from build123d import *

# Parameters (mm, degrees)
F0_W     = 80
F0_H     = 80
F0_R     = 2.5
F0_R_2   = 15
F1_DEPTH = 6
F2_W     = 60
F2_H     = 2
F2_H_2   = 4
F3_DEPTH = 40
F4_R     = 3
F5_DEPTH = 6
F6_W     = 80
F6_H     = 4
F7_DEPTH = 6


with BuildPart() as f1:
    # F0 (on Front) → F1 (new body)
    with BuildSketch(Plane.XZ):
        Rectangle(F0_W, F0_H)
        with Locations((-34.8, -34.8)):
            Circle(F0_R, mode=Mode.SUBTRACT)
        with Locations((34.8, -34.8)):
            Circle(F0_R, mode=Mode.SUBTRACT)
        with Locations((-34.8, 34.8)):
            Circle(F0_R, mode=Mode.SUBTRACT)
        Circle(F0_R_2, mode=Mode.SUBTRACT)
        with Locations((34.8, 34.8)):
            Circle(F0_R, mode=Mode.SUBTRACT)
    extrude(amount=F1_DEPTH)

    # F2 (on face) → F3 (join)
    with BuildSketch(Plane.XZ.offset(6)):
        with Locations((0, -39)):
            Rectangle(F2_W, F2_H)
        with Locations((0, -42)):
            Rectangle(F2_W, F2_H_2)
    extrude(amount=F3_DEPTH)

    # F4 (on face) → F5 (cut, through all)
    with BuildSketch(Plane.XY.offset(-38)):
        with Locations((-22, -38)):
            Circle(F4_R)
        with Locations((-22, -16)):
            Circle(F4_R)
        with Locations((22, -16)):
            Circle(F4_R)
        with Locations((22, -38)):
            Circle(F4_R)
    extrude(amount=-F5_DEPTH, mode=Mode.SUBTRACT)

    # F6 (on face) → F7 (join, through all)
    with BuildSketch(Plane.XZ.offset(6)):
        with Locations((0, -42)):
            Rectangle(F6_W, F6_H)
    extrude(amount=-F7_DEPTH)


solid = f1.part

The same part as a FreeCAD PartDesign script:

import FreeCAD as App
import Part
import Sketcher
Q = App.Units.Quantity

doc = App.newDocument("Part")
body = doc.addObject("PartDesign::Body", "Body")

# Sketch on XZ plane
sketch1 = body.newObject("Sketcher::SketchObject", "Sketch")
sketch1.AttachmentSupport = (doc.getObject("XZ_Plane"), [""])
sketch1.MapMode = "FlatFace"
sketch1.addGeometry(Part.LineSegment(App.Vector(-40, 40, 0), App.Vector(-40, -40, 0)), False)
sketch1.addGeometry(Part.LineSegment(App.Vector(-40, -40, 0), App.Vector(40, -40, 0)), False)
sketch1.addGeometry(Part.LineSegment(App.Vector(40, -40, 0), App.Vector(40, 40, 0)), False)
sketch1.addGeometry(Part.LineSegment(App.Vector(40, 40, 0), App.Vector(-40, 40, 0)), False)
sketch1.addGeometry(Part.Circle(App.Vector(-34.8, -34.8, 0), App.Vector(0, 0, 1), 2.5), False)
sketch1.addGeometry(Part.Circle(App.Vector(0, 0, 0), App.Vector(0, 0, 1), 15), False)
sketch1.addGeometry(Part.Circle(App.Vector(34.8, -34.8, 0), App.Vector(0, 0, 1), 2.5), False)
sketch1.addGeometry(Part.Circle(App.Vector(-34.8, 34.8, 0), App.Vector(0, 0, 1), 2.5), False)
sketch1.addGeometry(Part.Circle(App.Vector(34.8, 34.8, 0), App.Vector(0, 0, 1), 2.5), False)
sketch1.addConstraint(Sketcher.Constraint("Coincident", 0, 2, 1, 1))
sketch1.addConstraint(Sketcher.Constraint("Coincident", 1, 2, 2, 1))
sketch1.addConstraint(Sketcher.Constraint("Coincident", 2, 2, 3, 1))
sketch1.addConstraint(Sketcher.Constraint("Coincident", 3, 2, 0, 1))
sketch1.addConstraint(Sketcher.Constraint("Vertical", 0))
sketch1.addConstraint(Sketcher.Constraint("Horizontal", 1))
sketch1.addConstraint(Sketcher.Constraint("Vertical", 2))
sketch1.addConstraint(Sketcher.Constraint("Horizontal", 3))
sketch1.addConstraint(Sketcher.Constraint("Coincident", 5, 3, -1, 1))
sketch1.addConstraint(Sketcher.Constraint("Equal", 4, 6))
sketch1.addConstraint(Sketcher.Constraint("Equal", 6, 7))
sketch1.addConstraint(Sketcher.Constraint("Equal", 7, 8))
sketch1.addConstraint(Sketcher.Constraint("Symmetric", 6, 3, 7, 3, -1, 1))
sketch1.addConstraint(Sketcher.Constraint("Symmetric", 4, 3, 8, 3, -1, 1))
sketch1.addConstraint(Sketcher.Constraint("Symmetric", 0, 2, 2, 2, -1, 1))
sketch1.addConstraint(Sketcher.Constraint("Symmetric", 4, 3, 6, 3, -2))
sketch1.addConstraint(Sketcher.Constraint("Equal", 3, 0))
sketch1.addConstraint(Sketcher.Constraint("Diameter", 4, Q("5 mm")))
sketch1.addConstraint(Sketcher.Constraint("Diameter", 5, Q("30 mm")))
sketch1.addConstraint(Sketcher.Constraint("DistanceX", 1, 1, 1, 2, Q("80 mm")))
sketch1.addConstraint(Sketcher.Constraint("DistanceX", 4, 3, -1, 1, Q("34.8 mm")))
sketch1.addConstraint(Sketcher.Constraint("DistanceY", 4, 3, -1, 1, Q("34.8 mm")))
pad1 = body.newObject("PartDesign::Pad", "Pad")
pad1.Profile = sketch1
pad1.Length = 6

# Sketch on XZ plane
sketch2 = body.newObject("Sketcher::SketchObject", "Sketch001")
sketch2.AttachmentSupport = (doc.getObject("XZ_Plane"), [""])
sketch2.MapMode = "FlatFace"
sketch2.AttachmentOffset = App.Placement(App.Vector(0, 0, 6), App.Rotation())
sketch2.addGeometry(Part.LineSegment(App.Vector(-30, -38, 0), App.Vector(-30, -44, 0)), False)
sketch2.addGeometry(Part.LineSegment(App.Vector(-30, -44, 0), App.Vector(30, -44, 0)), False)
sketch2.addGeometry(Part.LineSegment(App.Vector(30, -44, 0), App.Vector(30, -38, 0)), False)
sketch2.addGeometry(Part.LineSegment(App.Vector(30, -38, 0), App.Vector(-30, -38, 0)), False)
sketch2.addConstraint(Sketcher.Constraint("Coincident", 0, 2, 1, 1))
sketch2.addConstraint(Sketcher.Constraint("Coincident", 1, 2, 2, 1))
sketch2.addConstraint(Sketcher.Constraint("Coincident", 2, 2, 3, 1))
sketch2.addConstraint(Sketcher.Constraint("Coincident", 3, 2, 0, 1))
sketch2.addConstraint(Sketcher.Constraint("Vertical", 0))
sketch2.addConstraint(Sketcher.Constraint("Horizontal", 1))
sketch2.addConstraint(Sketcher.Constraint("Vertical", 2))
sketch2.addConstraint(Sketcher.Constraint("Horizontal", 3))
sketch2.addConstraint(Sketcher.Constraint("DistanceX", 1, 1, 1, 2, Q("60 mm")))
sketch2.addConstraint(Sketcher.Constraint("DistanceY", 0, 2, 0, 1, Q("6 mm")))
sketch2.addConstraint(Sketcher.Constraint("DistanceX", 0, 2, -1, 1, Q("30 mm")))
sketch2.addConstraint(Sketcher.Constraint("DistanceY", 0, 2, -1, 1, Q("44 mm")))
pad2 = body.newObject("PartDesign::Pad", "Pad001")
pad2.Profile = sketch2
pad2.Length = 40

# Sketch on XY plane
sketch3 = body.newObject("Sketcher::SketchObject", "Sketch002")
sketch3.AttachmentSupport = (doc.getObject("XY_Plane"), [""])
sketch3.MapMode = "FlatFace"
sketch3.AttachmentOffset = App.Placement(App.Vector(0, 0, -38), App.Rotation())
sketch3.addGeometry(Part.Circle(App.Vector(-22, -38, 0), App.Vector(0, 0, 1), 3), False)
sketch3.addGeometry(Part.Circle(App.Vector(-22, -16, 0), App.Vector(0, 0, 1), 3), False)
sketch3.addGeometry(Part.Circle(App.Vector(22, -16, 0), App.Vector(0, 0, 1), 3), False)
sketch3.addGeometry(Part.Circle(App.Vector(22, -38, 0), App.Vector(0, 0, 1), 3), False)
sketch3.addConstraint(Sketcher.Constraint("Equal", 0, 1))
sketch3.addConstraint(Sketcher.Constraint("Equal", 1, 2))
sketch3.addConstraint(Sketcher.Constraint("Equal", 2, 3))
sketch3.addConstraint(Sketcher.Constraint("Symmetric", 1, 3, 2, 3, -2))
sketch3.addConstraint(Sketcher.Constraint("Symmetric", 0, 3, 3, 3, -2))
sketch3.addConstraint(Sketcher.Constraint("Vertical", 0, 3, 1, 3))
sketch3.addConstraint(Sketcher.Constraint("Diameter", 0, Q("6 mm")))
sketch3.addConstraint(Sketcher.Constraint("DistanceX", 0, 3, -1, 1, Q("22 mm")))
sketch3.addConstraint(Sketcher.Constraint("DistanceY", 0, 3, -1, 1, Q("38 mm")))
sketch3.addConstraint(Sketcher.Constraint("DistanceY", 1, 3, -1, 1, Q("16 mm")))
pocket1 = body.newObject("PartDesign::Pocket", "Pocket")
pocket1.Profile = sketch3
pocket1.Type = "ThroughAll"

# Sketch on XZ plane
sketch4 = body.newObject("Sketcher::SketchObject", "Sketch003")
sketch4.AttachmentSupport = (doc.getObject("XZ_Plane"), [""])
sketch4.MapMode = "FlatFace"
sketch4.AttachmentOffset = App.Placement(App.Vector(0, 0, 6), App.Rotation())
sketch4.addGeometry(Part.LineSegment(App.Vector(-40, -40, 0), App.Vector(-40, -44, 0)), False)
sketch4.addGeometry(Part.LineSegment(App.Vector(-40, -44, 0), App.Vector(40, -44, 0)), False)
sketch4.addGeometry(Part.LineSegment(App.Vector(40, -44, 0), App.Vector(40, -40, 0)), False)
sketch4.addGeometry(Part.LineSegment(App.Vector(40, -40, 0), App.Vector(-40, -40, 0)), False)
sketch4.addConstraint(Sketcher.Constraint("Coincident", 0, 2, 1, 1))
sketch4.addConstraint(Sketcher.Constraint("Coincident", 1, 2, 2, 1))
sketch4.addConstraint(Sketcher.Constraint("Coincident", 2, 2, 3, 1))
sketch4.addConstraint(Sketcher.Constraint("Coincident", 3, 2, 0, 1))
sketch4.addConstraint(Sketcher.Constraint("Vertical", 0))
sketch4.addConstraint(Sketcher.Constraint("Horizontal", 1))
sketch4.addConstraint(Sketcher.Constraint("Vertical", 2))
sketch4.addConstraint(Sketcher.Constraint("Horizontal", 3))
sketch4.addConstraint(Sketcher.Constraint("DistanceX", 1, 1, 1, 2, Q("80 mm")))
sketch4.addConstraint(Sketcher.Constraint("DistanceY", 0, 2, 0, 1, Q("4 mm")))
sketch4.addConstraint(Sketcher.Constraint("DistanceX", 0, 2, -1, 1, Q("40 mm")))
sketch4.addConstraint(Sketcher.Constraint("DistanceY", 0, 2, -1, 1, Q("44 mm")))
pad3 = body.newObject("PartDesign::Pad", "Pad002")
pad3.Profile = sketch4
pad3.Length = 6
pad3.Reversed = True

doc.recompute()
